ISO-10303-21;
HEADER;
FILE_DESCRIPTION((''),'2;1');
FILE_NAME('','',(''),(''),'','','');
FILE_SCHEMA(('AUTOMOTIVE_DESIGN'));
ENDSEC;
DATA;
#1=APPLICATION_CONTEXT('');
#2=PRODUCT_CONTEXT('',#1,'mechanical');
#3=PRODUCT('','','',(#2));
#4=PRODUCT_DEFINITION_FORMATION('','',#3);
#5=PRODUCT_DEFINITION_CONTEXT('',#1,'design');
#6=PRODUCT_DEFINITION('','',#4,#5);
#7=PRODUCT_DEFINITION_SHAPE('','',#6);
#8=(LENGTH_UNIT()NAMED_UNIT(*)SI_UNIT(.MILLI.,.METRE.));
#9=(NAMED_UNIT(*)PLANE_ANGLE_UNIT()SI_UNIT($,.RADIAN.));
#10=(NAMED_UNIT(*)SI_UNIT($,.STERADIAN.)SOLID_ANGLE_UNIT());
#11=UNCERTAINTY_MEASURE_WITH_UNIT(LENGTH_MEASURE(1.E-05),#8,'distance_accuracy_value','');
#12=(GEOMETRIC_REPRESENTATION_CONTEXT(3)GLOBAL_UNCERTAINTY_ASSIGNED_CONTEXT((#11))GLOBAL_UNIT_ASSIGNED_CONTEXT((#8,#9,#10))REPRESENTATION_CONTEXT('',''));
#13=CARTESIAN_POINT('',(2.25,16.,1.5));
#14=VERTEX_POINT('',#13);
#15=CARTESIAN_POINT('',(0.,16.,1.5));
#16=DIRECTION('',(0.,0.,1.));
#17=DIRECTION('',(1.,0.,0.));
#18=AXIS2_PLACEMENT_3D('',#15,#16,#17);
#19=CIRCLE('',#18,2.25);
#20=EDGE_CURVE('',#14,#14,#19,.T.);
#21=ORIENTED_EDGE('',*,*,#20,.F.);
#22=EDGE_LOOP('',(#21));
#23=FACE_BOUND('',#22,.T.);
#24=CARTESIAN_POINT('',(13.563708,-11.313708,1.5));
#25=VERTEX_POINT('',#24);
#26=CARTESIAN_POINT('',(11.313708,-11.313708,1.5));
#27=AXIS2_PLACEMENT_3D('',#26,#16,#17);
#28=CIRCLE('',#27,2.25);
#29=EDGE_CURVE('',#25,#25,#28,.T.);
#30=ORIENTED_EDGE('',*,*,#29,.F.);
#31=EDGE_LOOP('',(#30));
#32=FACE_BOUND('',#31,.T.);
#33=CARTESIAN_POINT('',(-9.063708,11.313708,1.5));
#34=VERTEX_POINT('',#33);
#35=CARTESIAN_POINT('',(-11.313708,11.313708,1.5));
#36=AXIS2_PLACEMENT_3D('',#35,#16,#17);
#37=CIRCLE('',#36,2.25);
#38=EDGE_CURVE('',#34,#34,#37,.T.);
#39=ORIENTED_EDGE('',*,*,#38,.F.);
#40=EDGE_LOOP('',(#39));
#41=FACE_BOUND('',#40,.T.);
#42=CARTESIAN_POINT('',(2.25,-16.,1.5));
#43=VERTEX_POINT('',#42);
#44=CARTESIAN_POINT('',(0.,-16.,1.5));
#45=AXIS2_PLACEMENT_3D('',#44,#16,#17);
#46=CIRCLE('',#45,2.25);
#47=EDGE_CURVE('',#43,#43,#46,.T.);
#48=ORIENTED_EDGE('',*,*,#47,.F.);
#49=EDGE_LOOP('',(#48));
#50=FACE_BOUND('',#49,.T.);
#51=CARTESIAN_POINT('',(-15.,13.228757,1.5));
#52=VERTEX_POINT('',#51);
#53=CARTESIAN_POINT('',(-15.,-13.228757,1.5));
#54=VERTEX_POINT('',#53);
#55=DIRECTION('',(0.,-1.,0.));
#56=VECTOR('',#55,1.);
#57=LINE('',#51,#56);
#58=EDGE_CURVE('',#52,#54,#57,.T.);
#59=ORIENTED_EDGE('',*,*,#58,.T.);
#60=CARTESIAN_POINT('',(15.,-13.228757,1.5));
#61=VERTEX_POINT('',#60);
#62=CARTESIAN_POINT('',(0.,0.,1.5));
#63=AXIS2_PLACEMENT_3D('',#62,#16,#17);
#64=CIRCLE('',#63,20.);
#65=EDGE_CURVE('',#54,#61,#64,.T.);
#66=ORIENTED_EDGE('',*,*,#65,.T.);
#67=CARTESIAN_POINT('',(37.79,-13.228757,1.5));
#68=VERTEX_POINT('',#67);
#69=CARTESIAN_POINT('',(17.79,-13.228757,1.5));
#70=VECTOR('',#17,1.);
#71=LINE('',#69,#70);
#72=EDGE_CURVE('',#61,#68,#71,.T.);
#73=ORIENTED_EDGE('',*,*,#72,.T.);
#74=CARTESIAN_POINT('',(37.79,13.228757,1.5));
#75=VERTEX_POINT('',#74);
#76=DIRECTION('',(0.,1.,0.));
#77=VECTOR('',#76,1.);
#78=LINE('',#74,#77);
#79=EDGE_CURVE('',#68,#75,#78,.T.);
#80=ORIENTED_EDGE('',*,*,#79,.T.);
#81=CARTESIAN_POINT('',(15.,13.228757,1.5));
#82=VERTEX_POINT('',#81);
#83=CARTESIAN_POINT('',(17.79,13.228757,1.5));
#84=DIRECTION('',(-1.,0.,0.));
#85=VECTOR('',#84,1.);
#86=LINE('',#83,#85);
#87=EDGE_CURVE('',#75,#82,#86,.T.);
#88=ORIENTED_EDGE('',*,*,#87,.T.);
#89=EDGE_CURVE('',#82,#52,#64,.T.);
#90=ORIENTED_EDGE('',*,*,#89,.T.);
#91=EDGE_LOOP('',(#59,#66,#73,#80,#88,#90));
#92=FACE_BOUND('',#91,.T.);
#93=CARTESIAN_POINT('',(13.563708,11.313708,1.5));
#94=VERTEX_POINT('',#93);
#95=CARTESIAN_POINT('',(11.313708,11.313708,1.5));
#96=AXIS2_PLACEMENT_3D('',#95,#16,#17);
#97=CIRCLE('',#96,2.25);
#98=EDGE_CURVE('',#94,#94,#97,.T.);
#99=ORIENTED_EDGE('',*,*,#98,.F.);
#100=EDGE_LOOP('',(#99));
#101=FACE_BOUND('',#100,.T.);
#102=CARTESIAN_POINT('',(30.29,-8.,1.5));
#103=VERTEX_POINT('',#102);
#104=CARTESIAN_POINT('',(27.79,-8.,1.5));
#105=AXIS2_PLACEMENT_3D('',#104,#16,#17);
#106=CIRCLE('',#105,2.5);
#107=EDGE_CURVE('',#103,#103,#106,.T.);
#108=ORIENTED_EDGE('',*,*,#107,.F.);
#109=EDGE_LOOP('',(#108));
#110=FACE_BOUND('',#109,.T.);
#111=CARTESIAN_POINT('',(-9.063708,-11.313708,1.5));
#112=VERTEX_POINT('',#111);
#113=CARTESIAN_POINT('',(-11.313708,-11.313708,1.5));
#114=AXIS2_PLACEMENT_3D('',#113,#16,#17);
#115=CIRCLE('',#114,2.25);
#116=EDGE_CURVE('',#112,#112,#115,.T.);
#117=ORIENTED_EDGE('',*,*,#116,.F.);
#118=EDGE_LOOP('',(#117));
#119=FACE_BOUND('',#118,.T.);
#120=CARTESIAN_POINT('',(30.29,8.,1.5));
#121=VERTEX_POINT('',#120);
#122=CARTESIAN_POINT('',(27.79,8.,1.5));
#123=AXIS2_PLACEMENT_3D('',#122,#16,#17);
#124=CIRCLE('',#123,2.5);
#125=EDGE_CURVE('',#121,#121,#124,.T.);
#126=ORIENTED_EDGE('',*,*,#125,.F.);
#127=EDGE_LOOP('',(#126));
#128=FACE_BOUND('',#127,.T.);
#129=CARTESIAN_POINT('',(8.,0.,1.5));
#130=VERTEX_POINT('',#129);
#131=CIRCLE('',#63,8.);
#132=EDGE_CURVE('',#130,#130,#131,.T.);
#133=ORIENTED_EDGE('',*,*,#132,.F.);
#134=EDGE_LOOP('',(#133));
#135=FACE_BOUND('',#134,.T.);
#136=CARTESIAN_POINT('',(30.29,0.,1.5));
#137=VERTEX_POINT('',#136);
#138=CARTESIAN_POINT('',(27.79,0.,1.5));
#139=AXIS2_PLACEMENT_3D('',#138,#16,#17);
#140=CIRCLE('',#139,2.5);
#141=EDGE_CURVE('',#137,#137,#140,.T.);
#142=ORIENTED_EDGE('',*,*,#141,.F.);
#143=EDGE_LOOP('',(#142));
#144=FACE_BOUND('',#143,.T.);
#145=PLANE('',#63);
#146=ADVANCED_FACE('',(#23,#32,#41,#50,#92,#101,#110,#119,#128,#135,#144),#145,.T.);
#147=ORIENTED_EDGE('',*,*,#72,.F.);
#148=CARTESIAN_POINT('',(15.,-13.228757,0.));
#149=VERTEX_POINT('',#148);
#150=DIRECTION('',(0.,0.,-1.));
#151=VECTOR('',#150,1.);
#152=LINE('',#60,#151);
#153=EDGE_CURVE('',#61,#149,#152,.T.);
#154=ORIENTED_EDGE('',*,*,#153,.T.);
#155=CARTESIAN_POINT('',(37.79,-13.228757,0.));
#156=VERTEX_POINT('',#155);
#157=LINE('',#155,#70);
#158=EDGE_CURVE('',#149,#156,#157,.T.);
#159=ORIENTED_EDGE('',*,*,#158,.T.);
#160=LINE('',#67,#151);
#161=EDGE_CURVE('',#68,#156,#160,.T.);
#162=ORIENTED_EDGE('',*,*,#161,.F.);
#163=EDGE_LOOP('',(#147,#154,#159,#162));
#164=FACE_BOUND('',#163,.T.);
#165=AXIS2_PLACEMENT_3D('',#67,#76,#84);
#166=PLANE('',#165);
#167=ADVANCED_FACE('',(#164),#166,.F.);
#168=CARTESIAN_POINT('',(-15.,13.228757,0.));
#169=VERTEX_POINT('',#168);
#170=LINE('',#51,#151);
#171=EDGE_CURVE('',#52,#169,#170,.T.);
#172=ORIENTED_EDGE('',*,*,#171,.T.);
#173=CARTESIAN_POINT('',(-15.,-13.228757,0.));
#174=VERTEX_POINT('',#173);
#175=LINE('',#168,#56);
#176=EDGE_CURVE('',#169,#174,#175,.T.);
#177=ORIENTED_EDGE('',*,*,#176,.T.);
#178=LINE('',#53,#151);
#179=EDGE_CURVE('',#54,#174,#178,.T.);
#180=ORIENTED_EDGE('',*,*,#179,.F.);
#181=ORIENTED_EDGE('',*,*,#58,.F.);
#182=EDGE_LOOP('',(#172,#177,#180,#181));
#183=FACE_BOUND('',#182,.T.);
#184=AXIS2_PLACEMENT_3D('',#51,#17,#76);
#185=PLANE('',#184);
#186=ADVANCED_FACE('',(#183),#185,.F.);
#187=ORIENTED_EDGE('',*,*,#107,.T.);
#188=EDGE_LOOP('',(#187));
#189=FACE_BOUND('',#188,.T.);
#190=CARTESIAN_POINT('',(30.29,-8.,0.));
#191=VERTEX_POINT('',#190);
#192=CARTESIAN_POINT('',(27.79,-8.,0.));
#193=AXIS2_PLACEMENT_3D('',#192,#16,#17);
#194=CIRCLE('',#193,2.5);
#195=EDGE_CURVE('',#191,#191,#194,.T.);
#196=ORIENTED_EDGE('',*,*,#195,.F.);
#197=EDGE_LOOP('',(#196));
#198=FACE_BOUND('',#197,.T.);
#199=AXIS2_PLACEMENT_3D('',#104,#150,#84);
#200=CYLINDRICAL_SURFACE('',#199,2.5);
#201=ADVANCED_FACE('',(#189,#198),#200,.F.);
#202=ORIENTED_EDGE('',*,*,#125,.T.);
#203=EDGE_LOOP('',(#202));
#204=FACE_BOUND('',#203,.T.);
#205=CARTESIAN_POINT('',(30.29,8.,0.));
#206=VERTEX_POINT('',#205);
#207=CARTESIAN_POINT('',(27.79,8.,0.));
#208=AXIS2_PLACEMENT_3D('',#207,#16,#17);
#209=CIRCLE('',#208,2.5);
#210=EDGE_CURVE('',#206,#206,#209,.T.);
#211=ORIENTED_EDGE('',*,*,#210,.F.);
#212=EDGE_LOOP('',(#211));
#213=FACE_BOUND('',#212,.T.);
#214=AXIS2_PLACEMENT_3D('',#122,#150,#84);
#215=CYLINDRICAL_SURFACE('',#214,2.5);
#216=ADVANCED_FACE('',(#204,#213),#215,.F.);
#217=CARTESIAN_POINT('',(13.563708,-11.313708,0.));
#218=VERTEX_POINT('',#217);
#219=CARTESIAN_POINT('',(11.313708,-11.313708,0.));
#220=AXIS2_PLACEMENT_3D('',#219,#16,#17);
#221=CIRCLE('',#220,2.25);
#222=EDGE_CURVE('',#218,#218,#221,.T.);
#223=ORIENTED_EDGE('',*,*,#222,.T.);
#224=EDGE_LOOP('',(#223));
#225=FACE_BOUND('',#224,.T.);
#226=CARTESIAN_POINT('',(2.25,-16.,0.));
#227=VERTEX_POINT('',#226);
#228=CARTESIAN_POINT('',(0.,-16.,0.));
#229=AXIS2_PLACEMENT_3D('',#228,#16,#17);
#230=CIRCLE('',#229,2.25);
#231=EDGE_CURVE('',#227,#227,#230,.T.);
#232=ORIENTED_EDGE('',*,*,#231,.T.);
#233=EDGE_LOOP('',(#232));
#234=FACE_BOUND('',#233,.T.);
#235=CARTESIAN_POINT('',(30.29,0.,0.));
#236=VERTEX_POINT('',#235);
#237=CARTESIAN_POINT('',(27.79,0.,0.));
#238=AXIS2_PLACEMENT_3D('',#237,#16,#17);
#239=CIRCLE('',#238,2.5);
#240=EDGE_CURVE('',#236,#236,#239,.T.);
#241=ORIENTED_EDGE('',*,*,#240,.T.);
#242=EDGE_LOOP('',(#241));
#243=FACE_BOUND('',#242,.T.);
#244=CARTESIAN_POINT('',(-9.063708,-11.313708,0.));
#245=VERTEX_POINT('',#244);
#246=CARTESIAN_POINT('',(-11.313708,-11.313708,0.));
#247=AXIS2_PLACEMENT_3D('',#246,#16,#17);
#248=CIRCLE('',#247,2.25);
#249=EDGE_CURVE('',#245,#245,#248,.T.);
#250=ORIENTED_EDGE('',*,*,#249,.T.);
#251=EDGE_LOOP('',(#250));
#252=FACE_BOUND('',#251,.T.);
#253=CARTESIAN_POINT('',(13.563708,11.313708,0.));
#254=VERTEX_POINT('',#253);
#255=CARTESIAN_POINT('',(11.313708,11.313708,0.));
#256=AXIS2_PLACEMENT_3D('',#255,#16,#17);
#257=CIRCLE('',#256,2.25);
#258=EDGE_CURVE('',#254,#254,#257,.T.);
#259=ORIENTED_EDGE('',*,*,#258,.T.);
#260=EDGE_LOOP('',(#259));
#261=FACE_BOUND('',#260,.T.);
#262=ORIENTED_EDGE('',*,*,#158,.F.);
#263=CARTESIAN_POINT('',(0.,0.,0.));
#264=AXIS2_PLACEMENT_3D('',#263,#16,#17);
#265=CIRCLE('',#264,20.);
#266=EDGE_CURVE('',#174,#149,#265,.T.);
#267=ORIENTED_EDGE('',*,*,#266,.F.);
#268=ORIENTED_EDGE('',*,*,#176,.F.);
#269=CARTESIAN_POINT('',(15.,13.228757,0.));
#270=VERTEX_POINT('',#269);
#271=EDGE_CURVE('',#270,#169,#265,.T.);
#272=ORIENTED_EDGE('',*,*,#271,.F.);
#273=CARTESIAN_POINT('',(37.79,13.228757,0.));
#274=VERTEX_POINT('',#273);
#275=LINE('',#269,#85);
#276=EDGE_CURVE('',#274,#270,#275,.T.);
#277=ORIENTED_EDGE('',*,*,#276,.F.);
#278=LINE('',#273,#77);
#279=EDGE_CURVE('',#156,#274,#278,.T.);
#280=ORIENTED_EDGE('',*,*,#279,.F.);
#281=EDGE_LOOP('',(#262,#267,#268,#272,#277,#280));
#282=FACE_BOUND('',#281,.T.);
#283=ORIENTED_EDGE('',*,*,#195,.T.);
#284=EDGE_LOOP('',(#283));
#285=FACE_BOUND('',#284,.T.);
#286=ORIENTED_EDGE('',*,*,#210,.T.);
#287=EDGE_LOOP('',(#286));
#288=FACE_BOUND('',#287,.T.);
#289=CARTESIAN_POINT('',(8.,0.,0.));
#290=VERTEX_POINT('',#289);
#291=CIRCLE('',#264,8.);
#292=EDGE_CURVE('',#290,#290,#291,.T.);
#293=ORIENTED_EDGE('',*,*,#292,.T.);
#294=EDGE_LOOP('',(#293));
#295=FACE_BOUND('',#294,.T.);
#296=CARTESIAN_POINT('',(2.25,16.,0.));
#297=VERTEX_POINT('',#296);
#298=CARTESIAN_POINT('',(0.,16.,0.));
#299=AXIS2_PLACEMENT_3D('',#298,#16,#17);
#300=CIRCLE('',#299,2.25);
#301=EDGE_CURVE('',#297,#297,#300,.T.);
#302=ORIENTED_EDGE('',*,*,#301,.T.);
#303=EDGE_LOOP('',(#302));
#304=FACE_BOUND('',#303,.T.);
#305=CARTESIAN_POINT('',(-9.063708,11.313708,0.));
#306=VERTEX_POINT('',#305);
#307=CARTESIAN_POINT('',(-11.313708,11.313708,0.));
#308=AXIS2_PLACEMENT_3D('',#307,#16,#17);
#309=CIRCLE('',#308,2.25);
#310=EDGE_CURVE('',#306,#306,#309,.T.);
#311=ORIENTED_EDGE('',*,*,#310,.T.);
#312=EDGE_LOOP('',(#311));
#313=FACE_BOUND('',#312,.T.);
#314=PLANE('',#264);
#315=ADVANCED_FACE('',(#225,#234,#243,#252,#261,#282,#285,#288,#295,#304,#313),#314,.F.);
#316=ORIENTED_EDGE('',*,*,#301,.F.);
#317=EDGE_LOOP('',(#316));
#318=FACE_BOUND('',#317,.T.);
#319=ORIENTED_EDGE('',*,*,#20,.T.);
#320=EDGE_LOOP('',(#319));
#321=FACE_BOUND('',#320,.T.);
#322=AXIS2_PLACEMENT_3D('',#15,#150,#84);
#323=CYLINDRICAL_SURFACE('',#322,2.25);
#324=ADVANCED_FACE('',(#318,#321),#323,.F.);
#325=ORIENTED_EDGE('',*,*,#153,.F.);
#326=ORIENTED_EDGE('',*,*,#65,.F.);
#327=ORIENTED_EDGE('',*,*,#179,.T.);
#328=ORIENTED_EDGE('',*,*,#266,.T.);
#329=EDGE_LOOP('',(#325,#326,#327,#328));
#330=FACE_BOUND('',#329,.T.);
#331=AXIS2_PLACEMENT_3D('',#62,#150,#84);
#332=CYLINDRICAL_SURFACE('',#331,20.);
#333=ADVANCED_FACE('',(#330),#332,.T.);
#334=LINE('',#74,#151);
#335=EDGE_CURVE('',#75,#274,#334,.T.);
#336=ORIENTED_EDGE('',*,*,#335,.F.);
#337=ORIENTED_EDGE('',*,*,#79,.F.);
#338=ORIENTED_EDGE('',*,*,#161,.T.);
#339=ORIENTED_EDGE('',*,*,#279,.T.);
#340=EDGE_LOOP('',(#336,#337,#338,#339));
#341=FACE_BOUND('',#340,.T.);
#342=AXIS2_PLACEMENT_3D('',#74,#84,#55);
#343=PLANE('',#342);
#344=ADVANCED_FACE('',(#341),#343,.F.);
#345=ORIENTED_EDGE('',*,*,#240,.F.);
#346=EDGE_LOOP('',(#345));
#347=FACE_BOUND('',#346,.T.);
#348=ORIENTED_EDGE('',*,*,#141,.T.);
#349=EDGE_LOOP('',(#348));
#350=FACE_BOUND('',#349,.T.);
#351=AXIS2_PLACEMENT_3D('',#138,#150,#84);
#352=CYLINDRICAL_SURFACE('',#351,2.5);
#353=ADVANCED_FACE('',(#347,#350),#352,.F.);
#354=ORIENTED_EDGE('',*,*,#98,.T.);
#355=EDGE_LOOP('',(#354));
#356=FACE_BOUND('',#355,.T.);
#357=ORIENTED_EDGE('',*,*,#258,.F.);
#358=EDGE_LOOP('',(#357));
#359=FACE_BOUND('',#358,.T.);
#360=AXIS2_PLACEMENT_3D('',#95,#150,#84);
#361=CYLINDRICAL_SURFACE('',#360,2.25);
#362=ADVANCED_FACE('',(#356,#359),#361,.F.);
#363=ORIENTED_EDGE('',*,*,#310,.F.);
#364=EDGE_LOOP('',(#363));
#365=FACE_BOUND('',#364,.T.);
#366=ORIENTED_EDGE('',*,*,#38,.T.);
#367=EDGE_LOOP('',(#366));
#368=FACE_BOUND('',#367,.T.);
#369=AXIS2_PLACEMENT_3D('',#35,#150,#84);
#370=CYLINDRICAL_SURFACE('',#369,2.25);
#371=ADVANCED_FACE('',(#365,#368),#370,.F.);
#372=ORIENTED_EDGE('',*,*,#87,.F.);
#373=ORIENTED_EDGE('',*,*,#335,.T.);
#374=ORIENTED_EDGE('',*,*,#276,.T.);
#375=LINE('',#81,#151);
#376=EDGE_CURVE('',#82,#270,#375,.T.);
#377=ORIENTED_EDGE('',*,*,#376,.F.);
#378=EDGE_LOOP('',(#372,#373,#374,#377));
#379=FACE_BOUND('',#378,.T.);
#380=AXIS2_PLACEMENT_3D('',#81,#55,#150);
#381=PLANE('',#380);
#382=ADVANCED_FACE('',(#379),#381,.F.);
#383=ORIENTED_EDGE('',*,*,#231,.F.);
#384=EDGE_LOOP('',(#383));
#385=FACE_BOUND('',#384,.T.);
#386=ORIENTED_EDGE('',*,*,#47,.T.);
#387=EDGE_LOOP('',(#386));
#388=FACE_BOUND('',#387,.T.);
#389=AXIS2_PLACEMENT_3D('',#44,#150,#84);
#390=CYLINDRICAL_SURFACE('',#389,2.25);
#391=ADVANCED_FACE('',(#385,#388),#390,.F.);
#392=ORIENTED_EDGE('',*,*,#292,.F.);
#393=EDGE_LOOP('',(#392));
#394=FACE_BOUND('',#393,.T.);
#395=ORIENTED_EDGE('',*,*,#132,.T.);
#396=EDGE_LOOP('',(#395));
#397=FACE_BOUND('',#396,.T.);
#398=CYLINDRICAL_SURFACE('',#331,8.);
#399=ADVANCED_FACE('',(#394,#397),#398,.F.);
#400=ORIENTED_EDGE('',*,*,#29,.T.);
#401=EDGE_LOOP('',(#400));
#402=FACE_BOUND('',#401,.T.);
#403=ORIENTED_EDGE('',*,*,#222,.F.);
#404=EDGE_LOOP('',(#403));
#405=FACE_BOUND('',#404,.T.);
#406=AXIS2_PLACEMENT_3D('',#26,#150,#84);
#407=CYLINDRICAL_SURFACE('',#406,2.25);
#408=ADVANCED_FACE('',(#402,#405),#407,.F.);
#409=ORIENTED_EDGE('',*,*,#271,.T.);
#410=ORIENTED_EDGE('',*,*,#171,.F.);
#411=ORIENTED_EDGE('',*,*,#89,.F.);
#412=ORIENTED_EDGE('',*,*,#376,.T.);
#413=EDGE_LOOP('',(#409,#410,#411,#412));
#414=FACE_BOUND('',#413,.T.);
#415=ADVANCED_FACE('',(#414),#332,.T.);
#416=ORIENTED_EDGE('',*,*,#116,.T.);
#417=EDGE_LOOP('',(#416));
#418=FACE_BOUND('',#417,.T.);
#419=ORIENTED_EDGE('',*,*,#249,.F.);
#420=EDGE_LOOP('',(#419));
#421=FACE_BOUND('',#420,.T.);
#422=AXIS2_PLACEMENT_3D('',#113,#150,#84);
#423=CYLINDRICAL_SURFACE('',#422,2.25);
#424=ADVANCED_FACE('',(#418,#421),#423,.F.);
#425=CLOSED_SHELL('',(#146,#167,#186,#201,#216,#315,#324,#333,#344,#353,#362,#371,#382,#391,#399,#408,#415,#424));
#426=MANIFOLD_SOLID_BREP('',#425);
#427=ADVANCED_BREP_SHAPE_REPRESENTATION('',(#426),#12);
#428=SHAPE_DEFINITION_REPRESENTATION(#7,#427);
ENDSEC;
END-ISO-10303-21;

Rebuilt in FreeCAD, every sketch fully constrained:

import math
import FreeCAD as App
import Part
import Sketcher

doc = App.newDocument("Part")
body = doc.addObject("PartDesign::Body", "Body")

sketch1 = body.newObject("Sketcher::SketchObject", "Sketch")
sketch1.AttachmentSupport = (doc.getObject("XY_Plane"), [""])
sketch1.MapMode = "FlatFace"
sketch1.addGeometry(Part.LineSegment(App.Vector(37.79, 13.228757, 0), App.Vector(15, 13.228757, 0)), False)
sketch1.addGeometry(Part.ArcOfCircle(Part.Circle(App.Vector(0, 0, 0), App.Vector(0, 0, 1), 20), math.radians(41.409622), math.radians(138.590378)), False)
sketch1.addGeometry(Part.LineSegment(App.Vector(-15, 13.228757, 0), App.Vector(-15, -13.228757, 0)), False)
sketch1.addGeometry(Part.ArcOfCircle(Part.Circle(App.Vector(0, 0, 0), App.Vector(0, 0, 1), 20), math.radians(-138.590378), math.radians(-41.409622)), False)
sketch1.addGeometry(Part.LineSegment(App.Vector(15, -13.228757, 0), App.Vector(37.79, -13.228757, 0)), False)
sketch1.addGeometry(Part.LineSegment(App.Vector(37.79, -13.228757, 0), App.Vector(37.79, 13.228757, 0)), False)
sketch1.addGeometry(Part.Circle(App.Vector(11.313708, -11.313708, 0), App.Vector(0, 0, 1), 2.25), False)
sketch1.addGeometry(Part.Circle(App.Vector(27.79, -8, 0), App.Vector(0, 0, 1), 2.5), False)
sketch1.addGeometry(Part.Circle(App.Vector(0, -16, 0), App.Vector(0, 0, 1), 2.25), False)
sketch1.addGeometry(Part.Circle(App.Vector(-11.313708, -11.313708, 0), App.Vector(0, 0, 1), 2.25), False)
sketch1.addGeometry(Part.Circle(App.Vector(27.79, 0, 0), App.Vector(0, 0, 1), 2.5), False)
sketch1.addGeometry(Part.Circle(App.Vector(27.79, 8, 0), App.Vector(0, 0, 1), 2.5), False)
sketch1.addGeometry(Part.Circle(App.Vector(11.313708, 11.313708, 0), App.Vector(0, 0, 1), 2.25), False)
sketch1.addGeometry(Part.Circle(App.Vector(0, 0, 0), App.Vector(0, 0, 1), 8), False)
sketch1.addGeometry(Part.Circle(App.Vector(0, 16, 0), App.Vector(0, 0, 1), 2.25), False)
sketch1.addGeometry(Part.Circle(App.Vector(-11.313708, 11.313708, 0), App.Vector(0, 0, 1), 2.25), False)
sketch1.addConstraint(Sketcher.Constraint("Coincident", 0, 2, 1, 1))
sketch1.addConstraint(Sketcher.Constraint("Coincident", 1, 2, 2, 1))
sketch1.addConstraint(Sketcher.Constraint("Coincident", 2, 2, 3, 1))
sketch1.addConstraint(Sketcher.Constraint("Coincident", 3, 2, 4, 1))
sketch1.addConstraint(Sketcher.Constraint("Coincident", 4, 2, 5, 1))
sketch1.addConstraint(Sketcher.Constraint("Coincident", 5, 2, 0, 1))
sketch1.addConstraint(Sketcher.Constraint("Horizontal", 0))
sketch1.addConstraint(Sketcher.Constraint("Vertical", 2))
sketch1.addConstraint(Sketcher.Constraint("Horizontal", 4))
sketch1.addConstraint(Sketcher.Constraint("Vertical", 5))
sketch1.addConstraint(Sketcher.Constraint("Coincident", 1, 3, -1, 1))
sketch1.addConstraint(Sketcher.Constraint("Coincident", 3, 3, -1, 1))
sketch1.addConstraint(Sketcher.Constraint("Coincident", 13, 3, -1, 1))
sketch1.addConstraint(Sketcher.Constraint("Equal", 1, 3))
sketch1.addConstraint(Sketcher.Constraint("Equal", 6, 8))
sketch1.addConstraint(Sketcher.Constraint("Equal", 8, 9))
sketch1.addConstraint(Sketcher.Constraint("Equal", 7, 10))
sketch1.addConstraint(Sketcher.Constraint("Equal", 10, 11))
sketch1.addConstraint(Sketcher.Constraint("Equal", 9, 12))
sketch1.addConstraint(Sketcher.Constraint("Equal", 12, 14))
sketch1.addConstraint(Sketcher.Constraint("Equal", 14, 15))
sketch1.addConstraint(Sketcher.Constraint("Symmetric", 9, 3, 12, 3, -1, 1))
sketch1.addConstraint(Sketcher.Constraint("Symmetric", 8, 3, 14, 3, -1, 1))
sketch1.addConstraint(Sketcher.Constraint("Symmetric", 6, 3, 15, 3, -1, 1))
sketch1.addConstraint(Sketcher.Constraint("Symmetric", 6, 3, 9, 3, -2))
sketch1.addConstraint(Sketcher.Constraint("Symmetric", 7, 3, 11, 3, -1))
sketch1.addConstraint(Sketcher.Constraint("PointOnObject", 8, 3, -2))
sketch1.addConstraint(Sketcher.Constraint("PointOnObject", 10, 3, -1))
sketch1.addConstraint(Sketcher.Constraint("Horizontal", 0, 2, 1, 2))
sketch1.addConstraint(Sketcher.Constraint("Horizontal", 2, 2, 3, 2))
sketch1.addConstraint(Sketcher.Constraint("Vertical", 7, 3, 10, 3))
sketch1.addConstraint(Sketcher.Constraint("Diameter", 7, 5.0))
sketch1.addConstraint(Sketcher.Constraint("Diameter", 13, 16.0))
sketch1.addConstraint(Sketcher.Constraint("Radius", 1, 20.0))
sketch1.addConstraint(Sketcher.Constraint("Diameter", 6, 4.5))
sketch1.addConstraint(Sketcher.Constraint("DistanceY", 7, 3, -1, 1, 8.0))
sketch1.addConstraint(Sketcher.Constraint("DistanceY", 8, 3, -1, 1, 16.0))
sketch1.addConstraint(Sketcher.Constraint("DistanceX", -1, 1, 0, 2, 15.0))
sketch1.addConstraint(Sketcher.Constraint("DistanceX", 7, 3, 4, 2, 10.0))
sketch1.addConstraint(Sketcher.Constraint("DistanceX", 0, 2, 0, 1, 22.79))
sketch1.addConstraint(Sketcher.Constraint("DistanceX", -1, 1, 6, 3, 11.313708))
sketch1.addConstraint(Sketcher.Constraint("DistanceY", 6, 3, -1, 1, 11.313708))
pad1 = body.newObject("PartDesign::Pad", "Pad")
pad1.Profile = sketch1
pad1.Length = 1.5

doc.recompute()
